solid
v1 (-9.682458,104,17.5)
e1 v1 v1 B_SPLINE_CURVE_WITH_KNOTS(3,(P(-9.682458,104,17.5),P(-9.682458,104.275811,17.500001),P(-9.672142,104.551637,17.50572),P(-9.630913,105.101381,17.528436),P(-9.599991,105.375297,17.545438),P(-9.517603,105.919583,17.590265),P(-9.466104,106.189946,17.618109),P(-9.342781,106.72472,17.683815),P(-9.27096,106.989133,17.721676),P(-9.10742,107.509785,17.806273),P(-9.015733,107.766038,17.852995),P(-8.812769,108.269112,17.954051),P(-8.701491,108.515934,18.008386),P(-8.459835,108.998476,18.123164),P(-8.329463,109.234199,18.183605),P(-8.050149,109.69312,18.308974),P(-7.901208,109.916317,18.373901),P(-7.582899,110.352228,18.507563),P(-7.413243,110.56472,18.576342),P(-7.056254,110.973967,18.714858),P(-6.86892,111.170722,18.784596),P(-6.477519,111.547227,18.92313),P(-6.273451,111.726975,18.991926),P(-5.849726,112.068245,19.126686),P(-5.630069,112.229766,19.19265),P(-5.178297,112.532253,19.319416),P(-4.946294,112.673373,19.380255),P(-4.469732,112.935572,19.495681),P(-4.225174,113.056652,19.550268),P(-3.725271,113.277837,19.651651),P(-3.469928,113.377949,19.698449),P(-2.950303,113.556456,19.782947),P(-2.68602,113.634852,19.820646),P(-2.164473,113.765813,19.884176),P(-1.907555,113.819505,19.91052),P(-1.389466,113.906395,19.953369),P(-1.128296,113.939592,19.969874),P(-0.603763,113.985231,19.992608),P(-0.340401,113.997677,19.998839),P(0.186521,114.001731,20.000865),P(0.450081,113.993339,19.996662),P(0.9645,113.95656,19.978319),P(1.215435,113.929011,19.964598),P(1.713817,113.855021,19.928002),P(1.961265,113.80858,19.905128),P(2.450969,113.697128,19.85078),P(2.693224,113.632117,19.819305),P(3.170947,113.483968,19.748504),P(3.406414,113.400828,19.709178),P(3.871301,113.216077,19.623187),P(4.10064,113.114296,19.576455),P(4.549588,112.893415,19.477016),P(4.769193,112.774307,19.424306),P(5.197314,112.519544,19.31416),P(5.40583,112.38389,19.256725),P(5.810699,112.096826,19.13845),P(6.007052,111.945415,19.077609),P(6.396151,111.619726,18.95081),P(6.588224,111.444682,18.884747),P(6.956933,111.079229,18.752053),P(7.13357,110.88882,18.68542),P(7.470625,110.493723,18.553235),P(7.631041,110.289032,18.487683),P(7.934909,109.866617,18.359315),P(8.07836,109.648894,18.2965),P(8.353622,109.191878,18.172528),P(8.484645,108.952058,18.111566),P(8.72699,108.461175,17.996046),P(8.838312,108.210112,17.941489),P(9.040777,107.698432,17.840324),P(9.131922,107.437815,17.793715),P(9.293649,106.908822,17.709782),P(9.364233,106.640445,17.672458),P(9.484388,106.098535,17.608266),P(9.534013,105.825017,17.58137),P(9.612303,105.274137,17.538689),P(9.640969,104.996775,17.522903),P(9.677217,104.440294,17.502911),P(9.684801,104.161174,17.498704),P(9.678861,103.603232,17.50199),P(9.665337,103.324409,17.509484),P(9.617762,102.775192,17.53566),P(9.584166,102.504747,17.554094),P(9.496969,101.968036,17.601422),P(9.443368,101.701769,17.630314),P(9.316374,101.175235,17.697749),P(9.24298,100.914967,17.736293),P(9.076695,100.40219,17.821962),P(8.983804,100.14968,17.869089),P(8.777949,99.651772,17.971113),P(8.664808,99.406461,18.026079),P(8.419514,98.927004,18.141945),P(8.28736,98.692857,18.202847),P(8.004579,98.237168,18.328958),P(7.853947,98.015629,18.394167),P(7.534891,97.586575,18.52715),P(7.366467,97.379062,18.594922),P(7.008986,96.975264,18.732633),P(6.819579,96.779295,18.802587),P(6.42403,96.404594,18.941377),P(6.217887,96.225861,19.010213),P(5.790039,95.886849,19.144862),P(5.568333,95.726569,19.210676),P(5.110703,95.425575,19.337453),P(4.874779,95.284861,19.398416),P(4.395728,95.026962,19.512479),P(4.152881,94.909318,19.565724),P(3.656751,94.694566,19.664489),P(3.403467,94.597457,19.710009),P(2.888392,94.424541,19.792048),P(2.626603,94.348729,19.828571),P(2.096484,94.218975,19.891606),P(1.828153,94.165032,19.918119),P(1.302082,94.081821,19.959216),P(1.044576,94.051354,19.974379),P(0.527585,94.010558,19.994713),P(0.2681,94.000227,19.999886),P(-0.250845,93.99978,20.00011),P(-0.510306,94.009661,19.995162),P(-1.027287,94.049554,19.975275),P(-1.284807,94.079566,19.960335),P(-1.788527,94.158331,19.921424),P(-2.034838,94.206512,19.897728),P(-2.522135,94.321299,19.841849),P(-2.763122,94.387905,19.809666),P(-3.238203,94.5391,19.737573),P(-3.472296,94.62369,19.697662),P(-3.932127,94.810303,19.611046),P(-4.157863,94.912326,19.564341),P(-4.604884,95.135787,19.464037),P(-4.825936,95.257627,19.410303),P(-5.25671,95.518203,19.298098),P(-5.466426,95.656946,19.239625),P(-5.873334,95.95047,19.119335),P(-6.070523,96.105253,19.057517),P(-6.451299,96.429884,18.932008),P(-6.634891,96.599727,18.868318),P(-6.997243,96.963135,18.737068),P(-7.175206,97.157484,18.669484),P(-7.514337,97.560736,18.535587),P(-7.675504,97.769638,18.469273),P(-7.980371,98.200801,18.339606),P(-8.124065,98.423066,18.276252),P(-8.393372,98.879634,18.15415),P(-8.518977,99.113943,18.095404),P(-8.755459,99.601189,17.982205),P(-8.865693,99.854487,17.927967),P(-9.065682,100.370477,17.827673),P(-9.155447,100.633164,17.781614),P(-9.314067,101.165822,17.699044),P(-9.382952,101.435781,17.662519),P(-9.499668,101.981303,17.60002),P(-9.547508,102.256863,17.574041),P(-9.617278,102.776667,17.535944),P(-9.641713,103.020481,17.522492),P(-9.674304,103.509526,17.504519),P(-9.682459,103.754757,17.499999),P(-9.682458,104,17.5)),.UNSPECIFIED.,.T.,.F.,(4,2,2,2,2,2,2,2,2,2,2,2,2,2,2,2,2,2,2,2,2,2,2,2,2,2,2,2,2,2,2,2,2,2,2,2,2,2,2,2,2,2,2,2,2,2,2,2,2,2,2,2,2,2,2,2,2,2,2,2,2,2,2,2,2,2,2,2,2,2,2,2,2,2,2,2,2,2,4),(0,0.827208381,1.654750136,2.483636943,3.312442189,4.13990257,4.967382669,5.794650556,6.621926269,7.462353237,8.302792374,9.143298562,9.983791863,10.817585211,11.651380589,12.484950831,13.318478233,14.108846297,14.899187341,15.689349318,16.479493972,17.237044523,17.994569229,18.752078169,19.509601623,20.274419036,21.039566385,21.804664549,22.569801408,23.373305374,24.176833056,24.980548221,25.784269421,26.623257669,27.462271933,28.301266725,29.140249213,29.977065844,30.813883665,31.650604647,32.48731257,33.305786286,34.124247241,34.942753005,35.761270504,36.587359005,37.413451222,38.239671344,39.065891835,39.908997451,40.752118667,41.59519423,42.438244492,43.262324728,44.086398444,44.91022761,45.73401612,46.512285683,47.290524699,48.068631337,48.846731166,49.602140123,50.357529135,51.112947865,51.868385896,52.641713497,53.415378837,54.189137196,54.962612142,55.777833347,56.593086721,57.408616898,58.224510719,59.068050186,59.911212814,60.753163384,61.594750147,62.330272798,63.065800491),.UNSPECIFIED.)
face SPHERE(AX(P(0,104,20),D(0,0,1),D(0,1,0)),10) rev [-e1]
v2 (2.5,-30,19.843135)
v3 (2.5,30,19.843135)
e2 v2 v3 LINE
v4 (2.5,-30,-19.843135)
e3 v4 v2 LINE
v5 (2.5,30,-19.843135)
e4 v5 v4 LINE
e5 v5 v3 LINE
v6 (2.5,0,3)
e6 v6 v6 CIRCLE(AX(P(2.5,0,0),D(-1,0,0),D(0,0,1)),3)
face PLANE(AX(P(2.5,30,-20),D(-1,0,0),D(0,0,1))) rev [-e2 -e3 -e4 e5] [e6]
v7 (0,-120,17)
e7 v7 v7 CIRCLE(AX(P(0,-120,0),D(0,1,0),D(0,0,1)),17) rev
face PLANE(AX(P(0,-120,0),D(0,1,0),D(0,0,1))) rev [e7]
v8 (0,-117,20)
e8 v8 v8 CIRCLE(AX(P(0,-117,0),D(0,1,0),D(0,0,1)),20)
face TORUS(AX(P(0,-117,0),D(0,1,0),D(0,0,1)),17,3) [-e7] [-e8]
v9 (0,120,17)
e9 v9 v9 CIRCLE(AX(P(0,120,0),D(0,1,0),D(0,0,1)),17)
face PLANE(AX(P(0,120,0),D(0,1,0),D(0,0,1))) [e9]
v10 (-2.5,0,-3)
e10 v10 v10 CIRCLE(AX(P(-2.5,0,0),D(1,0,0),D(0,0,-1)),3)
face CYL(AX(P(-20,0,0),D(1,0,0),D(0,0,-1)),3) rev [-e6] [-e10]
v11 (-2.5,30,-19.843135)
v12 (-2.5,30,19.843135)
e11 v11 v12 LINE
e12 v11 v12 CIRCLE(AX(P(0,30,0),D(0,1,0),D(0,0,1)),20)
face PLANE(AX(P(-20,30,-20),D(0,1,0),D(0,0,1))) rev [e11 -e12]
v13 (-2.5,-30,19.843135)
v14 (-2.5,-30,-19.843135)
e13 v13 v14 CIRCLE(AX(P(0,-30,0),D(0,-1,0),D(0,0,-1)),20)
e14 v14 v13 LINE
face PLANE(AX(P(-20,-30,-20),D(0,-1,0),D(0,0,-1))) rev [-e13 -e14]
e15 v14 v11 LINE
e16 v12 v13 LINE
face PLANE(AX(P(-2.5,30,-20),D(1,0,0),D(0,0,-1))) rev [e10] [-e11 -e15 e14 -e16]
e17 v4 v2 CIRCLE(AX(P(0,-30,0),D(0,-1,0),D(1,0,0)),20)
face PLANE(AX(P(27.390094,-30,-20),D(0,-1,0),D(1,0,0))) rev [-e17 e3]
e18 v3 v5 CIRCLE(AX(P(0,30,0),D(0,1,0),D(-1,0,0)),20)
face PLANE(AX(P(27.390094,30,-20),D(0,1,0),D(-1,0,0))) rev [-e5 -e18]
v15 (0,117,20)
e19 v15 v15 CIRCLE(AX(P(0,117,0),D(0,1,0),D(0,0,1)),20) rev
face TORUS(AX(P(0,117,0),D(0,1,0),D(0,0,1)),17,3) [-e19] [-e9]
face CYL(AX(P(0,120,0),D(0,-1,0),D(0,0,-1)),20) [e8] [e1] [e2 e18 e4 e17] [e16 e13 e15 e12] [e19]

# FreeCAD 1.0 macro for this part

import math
import FreeCAD as App
import Part
import Sketcher

V = App.Vector
Q = App.Units.Quantity


def edges_at(feature, points):
    """Names of the edges that pass closest to the given points."""
    edges = feature.Shape.Edges
    near = lambda p: min(range(len(edges)), key=lambda i: edges[i].distToShape(Part.Vertex(*p))[0])
    return sorted({f"Edge{near(p) + 1}" for p in points})

doc = App.newDocument("Part")
body = doc.addObject("PartDesign::Body", "Body")

# Sketch on XZ plane
sketch1 = doc.addObject("Sketcher::SketchObject", "Sketch")
body.addObject(sketch1)
sketch1.AttachmentSupport = (doc.XZ_Plane, [""])
sketch1.MapMode = "FlatFace"
sketch1.addGeometry(Part.Circle(V(0, 0, 0), V(0, 0, 1), 20), False)
sketch1.addConstraint([
    Sketcher.Constraint("Coincident", 0, 3, -1, 1),
    Sketcher.Constraint("Diameter", 0, Q("40 mm")),
])
pad1 = doc.addObject("PartDesign::Pad", "Pad")
body.addObject(pad1)
pad1.Profile = sketch1
pad1.Length = 240
pad1.Midplane = True

# Sketch on XY plane
sketch2 = doc.addObject("Sketcher::SketchObject", "Sketch001")
body.addObject(sketch2)
sketch2.AttachmentSupport = (doc.XY_Plane, [""])
sketch2.MapMode = "FlatFace"
sketch2.addGeometry([
    Part.LineSegment(V(-20, 30, 0), V(-20, -30, 0)),  # 0
    Part.LineSegment(V(-20, -30, 0), V(-2.5, -30, 0)),  # 1
    Part.LineSegment(V(-2.5, -30, 0), V(-2.5, 30, 0)),  # 2
    Part.LineSegment(V(-2.5, 30, 0), V(-20, 30, 0)),  # 3
    Part.LineSegment(V(2.5, 30, 0), V(2.5, -30, 0)),  # 4
    Part.LineSegment(V(2.5, -30, 0), V(27.390094, -30, 0)),  # 5
    Part.LineSegment(V(27.390094, -30, 0), V(27.390094, 30, 0)),  # 6
    Part.LineSegment(V(27.390094, 30, 0), V(2.5, 30, 0)),  # 7
], False)
sketch2.addConstraint([
    Sketcher.Constraint("Coincident", 0, 2, 1, 1),
    Sketcher.Constraint("Coincident", 1, 2, 2, 1),
    Sketcher.Constraint("Coincident", 2, 2, 3, 1),
    Sketcher.Constraint("Coincident", 3, 2, 0, 1),
    Sketcher.Constraint("Coincident", 4, 2, 5, 1),
    Sketcher.Constraint("Coincident", 5, 2, 6, 1),
    Sketcher.Constraint("Coincident", 6, 2, 7, 1),
    Sketcher.Constraint("Coincident", 7, 2, 4, 1),
    Sketcher.Constraint("Vertical", 0),
    Sketcher.Constraint("Horizontal", 1),
    Sketcher.Constraint("Vertical", 2),
    Sketcher.Constraint("Horizontal", 3),
    Sketcher.Constraint("Vertical", 4),
    Sketcher.Constraint("Horizontal", 5),
    Sketcher.Constraint("Vertical", 6),
    Sketcher.Constraint("Horizontal", 7),
    Sketcher.Constraint("Symmetric", 2, 2, 4, 2, -1, 1),
    Sketcher.Constraint("Horizontal", 1, 2, 4, 2),
    Sketcher.Constraint("Horizontal", 3, 2, 6, 2),
    Sketcher.Constraint("DistanceY", 0, 2, 0, 1, Q("60 mm")),
    Sketcher.Constraint("DistanceX", 1, 1, 1, 2, Q("17.5 mm")),
    Sketcher.Constraint("DistanceX", 0, 2, -1, 1, Q("20 mm")),
    Sketcher.Constraint("DistanceX", 5, 1, 5, 2, Q("24.890094 mm")),
])
pocket1 = doc.addObject("PartDesign::Pocket", "Pocket")
body.addObject(pocket1)
pocket1.Profile = sketch2
pocket1.Type = "ThroughAll"
pocket1.Midplane = True

# Sketch on YZ plane
sketch3 = doc.addObject("Sketcher::SketchObject", "Sketch002")
body.addObject(sketch3)
sketch3.AttachmentSupport = (doc.YZ_Plane, [""])
sketch3.MapMode = "FlatFace"
sketch3.AttachmentOffset = App.Placement(V(0, 0, 2.5), App.Rotation())
sketch3.addGeometry(Part.Circle(V(0, 0, 0), V(0, 0, 1), 3), False)
sketch3.addConstraint([
    Sketcher.Constraint("Coincident", 0, 3, -1, 1),
    Sketcher.Constraint("Diameter", 0, Q("6 mm")),
])
pocket2 = doc.addObject("PartDesign::Pocket", "Pocket001")
body.addObject(pocket2)
pocket2.Profile = sketch3
pocket2.Type = "ThroughAll"
pocket2.Midplane = True

# Sketch on YZ plane
sketch4 = doc.addObject("Sketcher::SketchObject", "Sketch003")
body.addObject(sketch4)
sketch4.AttachmentSupport = (doc.YZ_Plane, [""])
sketch4.MapMode = "FlatFace"
sketch4.addGeometry([
    Part.LineSegment(V(104, 10, 0), V(104, 30, 0)),
    Part.ArcOfCircle(Part.Circle(V(104, 20, 0), V(0, 0, 1), 10), math.radians(90), math.radians(270)),
], False)
sketch4.addGeometry(Part.LineSegment(V(104, 30, 0), V(104, 10, 0)), True)  # axis
sketch4.addConstraint([
    Sketcher.Constraint("Coincident", 0, 1, 1, 2),
    Sketcher.Constraint("Coincident", 1, 1, 0, 2),
    Sketcher.Constraint("Vertical", 0),
    Sketcher.Constraint("Vertical", 2),
    Sketcher.Constraint("Coincident", 2, 1, 1, 1),
    Sketcher.Constraint("Vertical", 1, 3, 0, 1),
    Sketcher.Constraint("Equal", 0, 2),
    Sketcher.Constraint("Radius", 1, Q("10 mm")),
    Sketcher.Constraint("DistanceX", -1, 1, 1, 3, Q("104 mm")),
    Sketcher.Constraint("DistanceY", -1, 1, 1, 3, Q("20 mm")),
])
groove = doc.addObject("PartDesign::Groove", "Groove")
body.addObject(groove)
groove.Profile = sketch4
groove.ReferenceAxis = (sketch4, ["Axis0"])
groove.Angle = 360
doc.recompute()

fillet = doc.addObject("PartDesign::Fillet", "Fillet")
body.addObject(fillet)
fillet.Base = (groove, edges_at(groove, [(0, -120, -20), (0, 120, -20)]))
fillet.Radius = 3

doc.recompute()
